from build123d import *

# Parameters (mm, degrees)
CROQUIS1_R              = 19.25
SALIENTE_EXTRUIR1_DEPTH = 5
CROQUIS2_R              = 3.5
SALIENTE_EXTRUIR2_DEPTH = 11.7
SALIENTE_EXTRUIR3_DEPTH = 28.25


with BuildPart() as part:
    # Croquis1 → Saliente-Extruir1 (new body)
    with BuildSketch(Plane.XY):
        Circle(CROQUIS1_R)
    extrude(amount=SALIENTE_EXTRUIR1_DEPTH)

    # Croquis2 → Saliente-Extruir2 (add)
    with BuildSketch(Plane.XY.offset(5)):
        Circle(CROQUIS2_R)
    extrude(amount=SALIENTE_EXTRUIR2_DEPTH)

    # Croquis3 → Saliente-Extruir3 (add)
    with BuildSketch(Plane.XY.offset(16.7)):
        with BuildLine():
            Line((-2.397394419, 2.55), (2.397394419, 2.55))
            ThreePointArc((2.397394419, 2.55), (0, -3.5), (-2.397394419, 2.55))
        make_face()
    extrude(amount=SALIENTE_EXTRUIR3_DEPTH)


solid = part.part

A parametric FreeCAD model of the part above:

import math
import FreeCAD as App
import Part
import Sketcher
Q = App.Units.Quantity

doc = App.newDocument("Part")
body = doc.addObject("PartDesign::Body", "Body")

# Sketch on XY plane
sketch1 = body.newObject("Sketcher::SketchObject", "Sketch")
sketch1.AttachmentSupport = (doc.getObject("XY_Plane"), [""])
sketch1.MapMode = "FlatFace"
sketch1.addGeometry(Part.Circle(App.Vector(0, 0, 0), App.Vector(0, 0, 1), 19), False)
sketch1.addConstraint(Sketcher.Constraint("Coincident", 0, 3, -1, 1))
sketch1.addConstraint(Sketcher.Constraint("Diameter", 0, Q("38.5 mm")))
pad1 = body.newObject("PartDesign::Pad", "Pad")
pad1.Profile = sketch1
pad1.Length = 5

# Sketch on XY plane
sketch2 = body.newObject("Sketcher::SketchObject", "Sketch001")
sketch2.AttachmentSupport = (doc.getObject("XY_Plane"), [""])
sketch2.MapMode = "FlatFace"
sketch2.AttachmentOffset = App.Placement(App.Vector(0, 0, 5), App.Rotation())
sketch2.addGeometry(Part.Circle(App.Vector(0, 0, 0), App.Vector(0, 0, 1), 3.5), False)
sketch2.addConstraint(Sketcher.Constraint("Coincident", 0, 3, -1, 1))
sketch2.addConstraint(Sketcher.Constraint("Diameter", 0, Q("7 mm")))
pad2 = body.newObject("PartDesign::Pad", "Pad001")
pad2.Profile = sketch2
pad2.Length = 11.7

# Sketch on XY plane
sketch3 = body.newObject("Sketcher::SketchObject", "Sketch002")
sketch3.AttachmentSupport = (doc.getObject("XY_Plane"), [""])
sketch3.MapMode = "FlatFace"
sketch3.AttachmentOffset = App.Placement(App.Vector(0, 0, 16.7), App.Rotation())
sketch3.addGeometry(Part.LineSegment(App.Vector(2.4, 2.5, 0), App.Vector(-2.4, 2.5, 0)), False)
sketch3.addGeometry(Part.ArcOfCircle(Part.Circle(App.Vector(0, 0, 0), App.Vector(0, 0, 1), 3.5), math.radians(133), math.radians(407)), False)
sketch3.addConstraint(Sketcher.Constraint("Coincident", 0, 1, 1, 2))
sketch3.addConstraint(Sketcher.Constraint("Coincident", 1, 1, 0, 2))
sketch3.addConstraint(Sketcher.Constraint("Horizontal", 0))
sketch3.addConstraint(Sketcher.Constraint("Coincident", 1, 3, -1, 1))
sketch3.addConstraint(Sketcher.Constraint("Radius", 1, Q("3.5 mm")))
sketch3.addConstraint(Sketcher.Constraint("DistanceY", -1, 1, 0, 1, Q("2.55 mm")))
pad3 = body.newObject("PartDesign::Pad", "Pad002")
pad3.Profile = sketch3
pad3.Length = 28.25

doc.recompute()
